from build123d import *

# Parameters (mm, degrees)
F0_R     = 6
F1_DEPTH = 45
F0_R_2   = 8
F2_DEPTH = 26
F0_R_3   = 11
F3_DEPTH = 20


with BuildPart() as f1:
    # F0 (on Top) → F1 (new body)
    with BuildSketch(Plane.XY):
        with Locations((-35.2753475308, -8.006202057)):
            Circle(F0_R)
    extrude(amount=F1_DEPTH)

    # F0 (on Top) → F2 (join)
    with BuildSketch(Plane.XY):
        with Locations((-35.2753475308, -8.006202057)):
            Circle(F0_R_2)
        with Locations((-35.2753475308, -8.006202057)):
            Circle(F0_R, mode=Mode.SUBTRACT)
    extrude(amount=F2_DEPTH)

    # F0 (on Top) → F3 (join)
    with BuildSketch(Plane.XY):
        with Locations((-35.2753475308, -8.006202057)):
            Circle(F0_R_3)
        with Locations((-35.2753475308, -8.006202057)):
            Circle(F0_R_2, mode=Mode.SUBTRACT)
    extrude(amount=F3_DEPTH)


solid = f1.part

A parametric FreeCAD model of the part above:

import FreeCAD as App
import Part
import Sketcher

V = App.Vector

doc = App.newDocument("Part")
body = doc.addObject("PartDesign::Body", "Body")

# Sketch on XY plane
sketch1 = body.newObject("Sketcher::SketchObject", "Sketch")
sketch1.AttachmentSupport = (doc.getObject("XY_Plane"), [""])
sketch1.MapMode = "FlatFace"
sketch1.addGeometry(Part.Circle(V(-35.275348, -8.006202, 0), V(0, 0, 1), 6), False)
sketch1.addConstraint([
    Sketcher.Constraint("Diameter", 0, 12.0),
    Sketcher.Constraint("DistanceX", 0, 3, -1, 1, 35.275348),
    Sketcher.Constraint("DistanceY", 0, 3, -1, 1, 8.006202),
])
pad1 = body.newObject("PartDesign::Pad", "Pad")
pad1.Profile = sketch1
pad1.Length = 45

# Sketch on XY plane
sketch2 = body.newObject("Sketcher::SketchObject", "Sketch001")
sketch2.AttachmentSupport = (doc.getObject("XY_Plane"), [""])
sketch2.MapMode = "FlatFace"
sketch2.addGeometry([
    Part.Circle(V(-35.275348, -8.006202, 0), V(0, 0, 1), 8),
    Part.Circle(V(-35.275348, -8.006202, 0), V(0, 0, 1), 6),
], False)
sketch2.addConstraint([
    Sketcher.Constraint("Coincident", 1, 3, 0, 3),
    Sketcher.Constraint("Diameter", 0, 16.0),
    Sketcher.Constraint("Diameter", 1, 12.0),
    Sketcher.Constraint("DistanceX", 0, 3, -1, 1, 35.275348),
    Sketcher.Constraint("DistanceY", 0, 3, -1, 1, 8.006202),
])
pad2 = body.newObject("PartDesign::Pad", "Pad001")
pad2.Profile = sketch2
pad2.Length = 26

# Sketch on XY plane
sketch3 = body.newObject("Sketcher::SketchObject", "Sketch002")
sketch3.AttachmentSupport = (doc.getObject("XY_Plane"), [""])
sketch3.MapMode = "FlatFace"
sketch3.addGeometry([
    Part.Circle(V(-35.275348, -8.006202, 0), V(0, 0, 1), 11),
    Part.Circle(V(-35.275348, -8.006202, 0), V(0, 0, 1), 8),
], False)
sketch3.addConstraint([
    Sketcher.Constraint("Coincident", 1, 3, 0, 3),
    Sketcher.Constraint("Diameter", 0, 22.0),
    Sketcher.Constraint("Diameter", 1, 16.0),
    Sketcher.Constraint("DistanceX", 0, 3, -1, 1, 35.275348),
    Sketcher.Constraint("DistanceY", 0, 3, -1, 1, 8.006202),
])
pad3 = body.newObject("PartDesign::Pad", "Pad002")
pad3.Profile = sketch3
pad3.Length = 20

doc.recompute()
